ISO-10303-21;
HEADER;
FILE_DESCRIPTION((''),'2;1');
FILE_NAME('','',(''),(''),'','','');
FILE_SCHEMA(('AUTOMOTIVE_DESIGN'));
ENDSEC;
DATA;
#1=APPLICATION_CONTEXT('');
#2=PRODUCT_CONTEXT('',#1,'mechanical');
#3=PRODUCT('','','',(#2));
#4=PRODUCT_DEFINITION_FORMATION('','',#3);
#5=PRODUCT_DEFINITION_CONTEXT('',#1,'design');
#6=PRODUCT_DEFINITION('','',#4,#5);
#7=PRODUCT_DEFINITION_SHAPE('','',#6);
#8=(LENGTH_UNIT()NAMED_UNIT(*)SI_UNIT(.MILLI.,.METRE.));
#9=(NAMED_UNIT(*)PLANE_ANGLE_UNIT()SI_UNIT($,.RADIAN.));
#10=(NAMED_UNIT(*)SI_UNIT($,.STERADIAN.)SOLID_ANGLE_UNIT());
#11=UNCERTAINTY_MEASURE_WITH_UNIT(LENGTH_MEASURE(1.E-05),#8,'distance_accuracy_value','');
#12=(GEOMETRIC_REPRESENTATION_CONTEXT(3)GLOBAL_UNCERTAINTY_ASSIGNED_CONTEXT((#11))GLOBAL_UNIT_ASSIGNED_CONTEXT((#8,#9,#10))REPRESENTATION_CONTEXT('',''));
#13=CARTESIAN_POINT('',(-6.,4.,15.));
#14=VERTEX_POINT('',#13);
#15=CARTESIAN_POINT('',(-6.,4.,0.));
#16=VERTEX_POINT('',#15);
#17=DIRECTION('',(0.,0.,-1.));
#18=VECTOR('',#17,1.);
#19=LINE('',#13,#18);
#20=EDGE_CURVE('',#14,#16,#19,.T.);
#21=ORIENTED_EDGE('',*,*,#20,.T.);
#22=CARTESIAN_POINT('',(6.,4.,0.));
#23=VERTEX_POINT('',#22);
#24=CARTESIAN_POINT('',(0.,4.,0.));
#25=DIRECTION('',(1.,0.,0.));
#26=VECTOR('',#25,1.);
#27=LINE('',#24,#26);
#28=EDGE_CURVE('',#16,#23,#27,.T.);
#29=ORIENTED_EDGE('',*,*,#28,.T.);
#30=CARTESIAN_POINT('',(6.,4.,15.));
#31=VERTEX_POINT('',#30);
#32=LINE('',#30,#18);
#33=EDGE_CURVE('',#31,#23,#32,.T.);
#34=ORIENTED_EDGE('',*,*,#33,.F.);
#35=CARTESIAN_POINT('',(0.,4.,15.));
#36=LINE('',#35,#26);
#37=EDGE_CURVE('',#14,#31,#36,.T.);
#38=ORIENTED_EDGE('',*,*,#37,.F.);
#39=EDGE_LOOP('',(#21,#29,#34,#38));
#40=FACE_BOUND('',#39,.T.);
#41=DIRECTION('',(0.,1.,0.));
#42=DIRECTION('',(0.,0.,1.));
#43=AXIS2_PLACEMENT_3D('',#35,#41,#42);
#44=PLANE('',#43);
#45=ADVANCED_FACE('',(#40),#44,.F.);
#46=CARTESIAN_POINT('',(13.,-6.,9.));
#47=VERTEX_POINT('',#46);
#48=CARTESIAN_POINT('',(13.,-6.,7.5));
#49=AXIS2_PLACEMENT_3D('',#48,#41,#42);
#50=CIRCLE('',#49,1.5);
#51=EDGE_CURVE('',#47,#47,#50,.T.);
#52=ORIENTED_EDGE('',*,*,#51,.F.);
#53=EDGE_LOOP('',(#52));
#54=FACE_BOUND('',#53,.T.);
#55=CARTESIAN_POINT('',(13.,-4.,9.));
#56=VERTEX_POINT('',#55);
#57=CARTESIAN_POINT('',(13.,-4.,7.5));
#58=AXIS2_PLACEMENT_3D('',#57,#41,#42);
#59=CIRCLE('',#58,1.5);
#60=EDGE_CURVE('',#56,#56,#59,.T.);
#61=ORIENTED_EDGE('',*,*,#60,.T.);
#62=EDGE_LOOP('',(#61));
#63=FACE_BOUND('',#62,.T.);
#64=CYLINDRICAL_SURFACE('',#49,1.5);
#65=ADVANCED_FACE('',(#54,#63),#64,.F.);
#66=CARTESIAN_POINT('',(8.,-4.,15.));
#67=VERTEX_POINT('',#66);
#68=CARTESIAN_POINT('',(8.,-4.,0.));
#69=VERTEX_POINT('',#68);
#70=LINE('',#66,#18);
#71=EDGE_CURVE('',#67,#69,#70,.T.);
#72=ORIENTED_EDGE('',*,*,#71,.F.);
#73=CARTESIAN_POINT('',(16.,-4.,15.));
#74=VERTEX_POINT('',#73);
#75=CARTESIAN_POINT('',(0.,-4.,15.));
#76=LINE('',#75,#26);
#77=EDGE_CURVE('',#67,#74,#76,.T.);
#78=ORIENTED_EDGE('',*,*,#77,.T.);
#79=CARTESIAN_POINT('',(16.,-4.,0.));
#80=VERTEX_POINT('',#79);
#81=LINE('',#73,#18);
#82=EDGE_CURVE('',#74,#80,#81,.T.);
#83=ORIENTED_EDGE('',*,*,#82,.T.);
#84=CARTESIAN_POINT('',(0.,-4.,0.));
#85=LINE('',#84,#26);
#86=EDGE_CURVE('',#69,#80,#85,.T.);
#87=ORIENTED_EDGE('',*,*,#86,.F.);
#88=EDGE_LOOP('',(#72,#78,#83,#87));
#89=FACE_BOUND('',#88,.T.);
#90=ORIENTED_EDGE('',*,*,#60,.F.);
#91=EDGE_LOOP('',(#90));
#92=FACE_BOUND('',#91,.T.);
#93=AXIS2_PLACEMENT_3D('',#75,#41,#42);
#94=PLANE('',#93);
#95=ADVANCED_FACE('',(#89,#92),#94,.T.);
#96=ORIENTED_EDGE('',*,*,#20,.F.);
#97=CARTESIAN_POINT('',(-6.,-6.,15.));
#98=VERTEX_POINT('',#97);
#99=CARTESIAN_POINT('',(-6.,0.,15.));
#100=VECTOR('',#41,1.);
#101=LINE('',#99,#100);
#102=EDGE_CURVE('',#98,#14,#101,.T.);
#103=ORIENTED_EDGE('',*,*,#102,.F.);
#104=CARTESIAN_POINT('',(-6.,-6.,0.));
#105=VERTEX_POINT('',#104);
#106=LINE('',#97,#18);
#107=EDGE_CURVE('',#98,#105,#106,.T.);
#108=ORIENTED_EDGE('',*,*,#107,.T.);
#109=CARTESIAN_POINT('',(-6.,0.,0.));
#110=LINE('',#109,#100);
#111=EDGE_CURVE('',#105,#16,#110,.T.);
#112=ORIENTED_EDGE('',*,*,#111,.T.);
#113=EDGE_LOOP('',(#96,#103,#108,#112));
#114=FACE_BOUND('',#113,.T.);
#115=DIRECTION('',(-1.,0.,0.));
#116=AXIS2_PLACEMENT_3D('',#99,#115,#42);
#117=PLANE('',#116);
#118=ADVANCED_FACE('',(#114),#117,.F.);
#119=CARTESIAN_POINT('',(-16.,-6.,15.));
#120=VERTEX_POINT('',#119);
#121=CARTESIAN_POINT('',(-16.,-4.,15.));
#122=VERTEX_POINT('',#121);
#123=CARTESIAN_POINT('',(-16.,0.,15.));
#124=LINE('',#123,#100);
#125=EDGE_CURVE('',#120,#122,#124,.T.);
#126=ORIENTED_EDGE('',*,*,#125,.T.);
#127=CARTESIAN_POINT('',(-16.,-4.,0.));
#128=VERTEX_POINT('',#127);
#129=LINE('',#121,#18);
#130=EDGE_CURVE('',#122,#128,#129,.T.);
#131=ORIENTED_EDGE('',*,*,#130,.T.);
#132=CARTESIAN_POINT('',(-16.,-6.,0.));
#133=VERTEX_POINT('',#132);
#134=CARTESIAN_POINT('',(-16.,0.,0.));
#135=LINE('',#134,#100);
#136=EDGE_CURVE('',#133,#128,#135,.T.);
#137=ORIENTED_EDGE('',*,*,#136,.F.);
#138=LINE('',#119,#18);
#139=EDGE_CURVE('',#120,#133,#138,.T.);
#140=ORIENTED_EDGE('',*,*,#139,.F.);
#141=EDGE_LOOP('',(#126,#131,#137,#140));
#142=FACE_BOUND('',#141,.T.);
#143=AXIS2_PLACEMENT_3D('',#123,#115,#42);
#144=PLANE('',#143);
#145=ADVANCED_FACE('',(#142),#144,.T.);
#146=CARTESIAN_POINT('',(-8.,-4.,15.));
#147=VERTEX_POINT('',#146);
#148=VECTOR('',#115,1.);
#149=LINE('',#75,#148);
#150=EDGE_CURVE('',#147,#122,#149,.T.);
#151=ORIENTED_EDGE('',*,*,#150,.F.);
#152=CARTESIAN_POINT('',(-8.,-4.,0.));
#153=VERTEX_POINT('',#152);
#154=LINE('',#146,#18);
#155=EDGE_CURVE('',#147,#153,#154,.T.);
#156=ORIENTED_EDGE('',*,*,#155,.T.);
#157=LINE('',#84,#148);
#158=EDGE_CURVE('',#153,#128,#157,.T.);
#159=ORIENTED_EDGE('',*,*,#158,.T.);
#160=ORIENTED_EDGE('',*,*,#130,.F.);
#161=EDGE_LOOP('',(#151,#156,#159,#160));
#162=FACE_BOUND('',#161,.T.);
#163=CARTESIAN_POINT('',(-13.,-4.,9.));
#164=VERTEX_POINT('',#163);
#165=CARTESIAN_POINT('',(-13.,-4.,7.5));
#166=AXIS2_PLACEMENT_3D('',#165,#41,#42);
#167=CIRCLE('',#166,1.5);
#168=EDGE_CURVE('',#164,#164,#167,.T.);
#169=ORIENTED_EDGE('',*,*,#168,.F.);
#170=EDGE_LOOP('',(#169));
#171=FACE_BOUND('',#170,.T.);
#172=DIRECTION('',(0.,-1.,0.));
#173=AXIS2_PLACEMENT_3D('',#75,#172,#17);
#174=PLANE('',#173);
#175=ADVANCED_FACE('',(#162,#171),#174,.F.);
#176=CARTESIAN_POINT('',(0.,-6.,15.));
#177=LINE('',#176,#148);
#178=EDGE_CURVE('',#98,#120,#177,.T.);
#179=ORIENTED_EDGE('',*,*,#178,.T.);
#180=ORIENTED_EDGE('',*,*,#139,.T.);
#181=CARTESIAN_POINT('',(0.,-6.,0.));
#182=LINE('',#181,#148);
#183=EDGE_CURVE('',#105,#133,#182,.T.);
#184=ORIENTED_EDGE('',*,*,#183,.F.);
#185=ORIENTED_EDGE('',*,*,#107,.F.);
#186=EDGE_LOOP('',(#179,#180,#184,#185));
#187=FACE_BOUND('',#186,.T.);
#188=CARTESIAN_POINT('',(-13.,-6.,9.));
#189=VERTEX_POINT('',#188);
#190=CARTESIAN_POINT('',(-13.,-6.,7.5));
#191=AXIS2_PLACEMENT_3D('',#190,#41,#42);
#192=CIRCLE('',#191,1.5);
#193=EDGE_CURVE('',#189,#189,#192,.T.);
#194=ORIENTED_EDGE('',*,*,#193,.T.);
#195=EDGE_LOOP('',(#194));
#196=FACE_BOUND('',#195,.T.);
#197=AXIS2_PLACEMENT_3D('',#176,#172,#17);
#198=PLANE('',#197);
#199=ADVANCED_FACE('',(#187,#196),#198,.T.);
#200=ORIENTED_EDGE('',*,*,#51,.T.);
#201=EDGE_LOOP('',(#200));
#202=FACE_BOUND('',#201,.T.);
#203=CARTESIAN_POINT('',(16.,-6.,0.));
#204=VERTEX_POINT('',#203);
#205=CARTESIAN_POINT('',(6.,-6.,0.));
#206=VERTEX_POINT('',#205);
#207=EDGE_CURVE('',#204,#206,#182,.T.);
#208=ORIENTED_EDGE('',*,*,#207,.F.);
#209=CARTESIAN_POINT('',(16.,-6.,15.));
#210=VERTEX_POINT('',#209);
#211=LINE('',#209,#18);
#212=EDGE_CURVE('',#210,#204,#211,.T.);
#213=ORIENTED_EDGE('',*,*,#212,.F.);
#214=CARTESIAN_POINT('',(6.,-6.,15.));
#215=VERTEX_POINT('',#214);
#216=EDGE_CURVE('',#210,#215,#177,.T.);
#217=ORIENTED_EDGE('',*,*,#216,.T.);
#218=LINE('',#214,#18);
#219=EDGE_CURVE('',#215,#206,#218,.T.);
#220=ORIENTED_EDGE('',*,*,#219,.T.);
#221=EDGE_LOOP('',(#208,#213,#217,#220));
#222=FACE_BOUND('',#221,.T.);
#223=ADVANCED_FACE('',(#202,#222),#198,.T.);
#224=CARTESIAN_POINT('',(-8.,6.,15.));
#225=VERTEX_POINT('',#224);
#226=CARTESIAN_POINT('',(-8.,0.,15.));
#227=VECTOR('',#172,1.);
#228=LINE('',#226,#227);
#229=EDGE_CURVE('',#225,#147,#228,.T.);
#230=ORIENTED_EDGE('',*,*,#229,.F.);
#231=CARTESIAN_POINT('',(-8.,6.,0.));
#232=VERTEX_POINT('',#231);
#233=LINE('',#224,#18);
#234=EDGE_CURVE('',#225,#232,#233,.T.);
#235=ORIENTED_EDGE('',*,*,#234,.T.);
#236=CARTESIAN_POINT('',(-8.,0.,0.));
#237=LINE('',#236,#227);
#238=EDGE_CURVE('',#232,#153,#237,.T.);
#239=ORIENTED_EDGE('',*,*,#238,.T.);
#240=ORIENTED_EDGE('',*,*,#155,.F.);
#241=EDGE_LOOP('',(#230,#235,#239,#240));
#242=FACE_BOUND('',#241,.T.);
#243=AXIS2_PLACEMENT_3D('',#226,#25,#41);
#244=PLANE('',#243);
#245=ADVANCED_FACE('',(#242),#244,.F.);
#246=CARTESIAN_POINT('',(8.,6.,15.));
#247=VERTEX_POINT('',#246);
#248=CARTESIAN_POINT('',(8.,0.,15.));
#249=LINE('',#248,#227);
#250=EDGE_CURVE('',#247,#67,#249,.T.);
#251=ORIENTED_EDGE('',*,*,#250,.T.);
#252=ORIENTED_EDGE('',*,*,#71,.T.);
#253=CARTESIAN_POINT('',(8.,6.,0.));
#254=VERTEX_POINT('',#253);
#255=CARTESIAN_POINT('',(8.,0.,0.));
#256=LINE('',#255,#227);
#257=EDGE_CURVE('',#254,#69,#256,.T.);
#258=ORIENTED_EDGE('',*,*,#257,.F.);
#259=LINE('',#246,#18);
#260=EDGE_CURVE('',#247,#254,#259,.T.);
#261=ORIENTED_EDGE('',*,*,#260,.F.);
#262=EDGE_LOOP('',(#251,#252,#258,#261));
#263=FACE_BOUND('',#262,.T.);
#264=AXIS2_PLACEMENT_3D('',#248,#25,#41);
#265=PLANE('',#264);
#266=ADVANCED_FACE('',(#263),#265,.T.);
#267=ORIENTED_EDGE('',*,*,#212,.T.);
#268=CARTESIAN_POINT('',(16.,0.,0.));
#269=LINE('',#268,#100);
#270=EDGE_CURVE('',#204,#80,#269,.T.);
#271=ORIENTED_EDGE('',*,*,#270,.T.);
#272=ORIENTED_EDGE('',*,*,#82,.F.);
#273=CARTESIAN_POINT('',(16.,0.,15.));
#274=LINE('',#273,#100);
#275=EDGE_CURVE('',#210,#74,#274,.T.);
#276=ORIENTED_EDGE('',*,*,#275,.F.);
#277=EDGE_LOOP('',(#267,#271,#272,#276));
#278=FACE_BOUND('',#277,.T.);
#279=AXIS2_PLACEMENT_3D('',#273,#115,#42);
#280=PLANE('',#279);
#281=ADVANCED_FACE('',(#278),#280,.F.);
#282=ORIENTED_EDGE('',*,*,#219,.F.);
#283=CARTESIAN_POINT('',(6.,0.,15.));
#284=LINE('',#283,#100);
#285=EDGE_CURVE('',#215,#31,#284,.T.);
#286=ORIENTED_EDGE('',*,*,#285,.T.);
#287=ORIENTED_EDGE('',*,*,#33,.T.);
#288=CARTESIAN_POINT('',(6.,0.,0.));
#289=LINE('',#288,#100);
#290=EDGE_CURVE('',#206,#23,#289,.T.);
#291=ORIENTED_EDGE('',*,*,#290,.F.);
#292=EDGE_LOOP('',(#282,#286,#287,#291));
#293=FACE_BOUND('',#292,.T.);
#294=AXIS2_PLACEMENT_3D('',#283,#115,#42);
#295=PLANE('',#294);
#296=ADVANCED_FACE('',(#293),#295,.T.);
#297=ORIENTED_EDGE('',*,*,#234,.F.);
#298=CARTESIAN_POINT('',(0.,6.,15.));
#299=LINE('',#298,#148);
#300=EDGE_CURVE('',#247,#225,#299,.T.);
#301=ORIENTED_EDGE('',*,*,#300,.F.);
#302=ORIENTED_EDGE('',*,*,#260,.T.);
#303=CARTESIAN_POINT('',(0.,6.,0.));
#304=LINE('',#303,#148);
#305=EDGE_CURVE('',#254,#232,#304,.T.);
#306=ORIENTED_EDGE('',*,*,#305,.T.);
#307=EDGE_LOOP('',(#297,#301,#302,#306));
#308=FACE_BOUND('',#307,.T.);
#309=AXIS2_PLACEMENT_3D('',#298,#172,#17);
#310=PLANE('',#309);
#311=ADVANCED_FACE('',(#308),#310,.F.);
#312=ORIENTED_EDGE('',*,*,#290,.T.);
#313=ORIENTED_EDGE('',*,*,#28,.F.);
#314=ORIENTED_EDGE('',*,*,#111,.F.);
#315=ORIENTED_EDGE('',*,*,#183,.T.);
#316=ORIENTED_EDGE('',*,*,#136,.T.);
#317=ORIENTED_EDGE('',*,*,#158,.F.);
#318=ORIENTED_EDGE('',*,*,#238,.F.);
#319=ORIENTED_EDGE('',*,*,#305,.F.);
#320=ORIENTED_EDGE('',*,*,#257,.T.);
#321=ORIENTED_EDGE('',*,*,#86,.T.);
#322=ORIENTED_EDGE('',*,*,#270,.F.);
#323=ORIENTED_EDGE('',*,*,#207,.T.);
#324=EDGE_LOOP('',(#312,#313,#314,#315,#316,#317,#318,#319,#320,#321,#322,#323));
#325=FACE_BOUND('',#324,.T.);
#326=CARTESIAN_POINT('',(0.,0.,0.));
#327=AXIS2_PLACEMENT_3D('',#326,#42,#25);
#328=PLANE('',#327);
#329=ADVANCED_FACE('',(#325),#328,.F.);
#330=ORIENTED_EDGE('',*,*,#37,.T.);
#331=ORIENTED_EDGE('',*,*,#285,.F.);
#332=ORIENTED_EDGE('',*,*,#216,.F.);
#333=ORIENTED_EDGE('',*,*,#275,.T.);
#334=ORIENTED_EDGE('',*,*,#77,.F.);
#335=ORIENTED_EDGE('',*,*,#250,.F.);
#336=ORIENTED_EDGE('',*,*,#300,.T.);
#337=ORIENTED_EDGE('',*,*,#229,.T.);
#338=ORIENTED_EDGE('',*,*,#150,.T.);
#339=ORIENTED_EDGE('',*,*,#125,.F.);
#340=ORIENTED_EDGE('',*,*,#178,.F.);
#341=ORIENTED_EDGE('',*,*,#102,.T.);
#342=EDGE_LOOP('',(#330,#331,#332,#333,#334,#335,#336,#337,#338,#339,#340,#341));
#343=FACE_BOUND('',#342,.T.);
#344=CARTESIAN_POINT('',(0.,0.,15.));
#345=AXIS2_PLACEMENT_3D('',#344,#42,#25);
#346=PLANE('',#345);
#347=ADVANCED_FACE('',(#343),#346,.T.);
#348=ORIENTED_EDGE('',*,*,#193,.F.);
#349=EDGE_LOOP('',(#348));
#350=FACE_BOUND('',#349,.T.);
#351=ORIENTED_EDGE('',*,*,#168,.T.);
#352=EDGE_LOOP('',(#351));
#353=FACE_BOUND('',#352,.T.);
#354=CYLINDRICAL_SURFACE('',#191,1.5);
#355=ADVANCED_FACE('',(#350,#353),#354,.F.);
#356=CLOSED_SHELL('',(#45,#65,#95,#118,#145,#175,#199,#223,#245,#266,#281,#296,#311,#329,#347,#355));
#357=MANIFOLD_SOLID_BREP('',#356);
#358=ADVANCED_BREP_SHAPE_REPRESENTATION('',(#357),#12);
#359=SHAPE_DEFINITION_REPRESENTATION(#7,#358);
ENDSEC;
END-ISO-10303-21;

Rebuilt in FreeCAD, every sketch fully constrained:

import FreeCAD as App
import Part
import Sketcher
from FreeCAD import Vector


def add_polygon(sketch, points):
    """Adds a closed chain of lines whose ends are joined by coincident constraints."""
    first, n = sketch.GeometryCount, len(points)
    for a, b in zip(points, points[1:] + points[:1]):
        sketch.addGeometry(Part.LineSegment(App.Vector(*a, 0), App.Vector(*b, 0)), False)
    for i in range(n):
        sketch.addConstraint(Sketcher.Constraint("Coincident", first + i, 2, first + (i + 1) % n, 1))

doc = App.newDocument("Part")
body = doc.addObject("PartDesign::Body", "Body")

# Sketch on XY plane
sketch1 = body.newObject("Sketcher::SketchObject", "Sketch")
sketch1.AttachmentSupport = (doc.getObject("XY_Plane"), [""])
sketch1.MapMode = "FlatFace"
add_polygon(sketch1, [(6, -6), (16, -6), (16, -4), (8, -4), (8, 6), (-8, 6), (-8, -4), (-16, -4), (-16, -6), (-6, -6), (-6, 4), (6, 4)])  # lines 0-11
sketch1.addConstraint([
    Sketcher.Constraint("Horizontal", 0),
    Sketcher.Constraint("Vertical", 1),
    Sketcher.Constraint("Horizontal", 2),
    Sketcher.Constraint("Vertical", 3),
    Sketcher.Constraint("Horizontal", 4),
    Sketcher.Constraint("Vertical", 5),
    Sketcher.Constraint("Horizontal", 6),
    Sketcher.Constraint("Vertical", 7),
    Sketcher.Constraint("Horizontal", 8),
    Sketcher.Constraint("Vertical", 9),
    Sketcher.Constraint("Horizontal", 10),
    Sketcher.Constraint("Vertical", 11),
    Sketcher.Constraint("Symmetric", 2, 2, 5, 2, -2),
    Sketcher.Constraint("Symmetric", 0, 2, 7, 2, -2),
    Sketcher.Constraint("Equal", 0, 8),
    Sketcher.Constraint("Equal", 8, 3),
    Sketcher.Constraint("Equal", 5, 9),
    Sketcher.Constraint("DistanceX", 0, 1, 0, 2, 10.0),
    Sketcher.Constraint("DistanceX", 2, 2, 2, 1, 8.0),
    Sketcher.Constraint("DistanceX", 4, 2, 4, 1, 16.0),
    Sketcher.Constraint("DistanceY", 1, 1, 1, 2, 2.0),
    Sketcher.Constraint("DistanceY", 0, 2, -1, 1, 6.0),
])
pad1 = body.newObject("PartDesign::Pad", "Pad")
pad1.Profile = sketch1
pad1.Length = 15

# Sketch on XZ plane
sketch2 = body.newObject("Sketcher::SketchObject", "Sketch001")
sketch2.AttachmentSupport = (doc.getObject("XZ_Plane"), [""])
sketch2.MapMode = "FlatFace"
sketch2.AttachmentOffset = App.Placement(Vector(0, 0, 4), App.Rotation())
sketch2.addGeometry([
    Part.Circle(Vector(-13, 7.5, 0), Vector(0, 0, 1), 1.5),
    Part.Circle(Vector(13, 7.5, 0), Vector(0, 0, 1), 1.5),
], False)
sketch2.addConstraint([
    Sketcher.Constraint("Equal", 0, 1),
    Sketcher.Constraint("Symmetric", 0, 3, 1, 3, -2),
    Sketcher.Constraint("Diameter", 0, 3.0),
    Sketcher.Constraint("DistanceX", 0, 3, -1, 1, 13.0),
    Sketcher.Constraint("DistanceY", -1, 1, 0, 3, 7.5),
])
pocket1 = body.newObject("PartDesign::Pocket", "Pocket")
pocket1.Profile = sketch2
pocket1.Type = "ThroughAll"
pocket1.Reversed = True

doc.recompute()
